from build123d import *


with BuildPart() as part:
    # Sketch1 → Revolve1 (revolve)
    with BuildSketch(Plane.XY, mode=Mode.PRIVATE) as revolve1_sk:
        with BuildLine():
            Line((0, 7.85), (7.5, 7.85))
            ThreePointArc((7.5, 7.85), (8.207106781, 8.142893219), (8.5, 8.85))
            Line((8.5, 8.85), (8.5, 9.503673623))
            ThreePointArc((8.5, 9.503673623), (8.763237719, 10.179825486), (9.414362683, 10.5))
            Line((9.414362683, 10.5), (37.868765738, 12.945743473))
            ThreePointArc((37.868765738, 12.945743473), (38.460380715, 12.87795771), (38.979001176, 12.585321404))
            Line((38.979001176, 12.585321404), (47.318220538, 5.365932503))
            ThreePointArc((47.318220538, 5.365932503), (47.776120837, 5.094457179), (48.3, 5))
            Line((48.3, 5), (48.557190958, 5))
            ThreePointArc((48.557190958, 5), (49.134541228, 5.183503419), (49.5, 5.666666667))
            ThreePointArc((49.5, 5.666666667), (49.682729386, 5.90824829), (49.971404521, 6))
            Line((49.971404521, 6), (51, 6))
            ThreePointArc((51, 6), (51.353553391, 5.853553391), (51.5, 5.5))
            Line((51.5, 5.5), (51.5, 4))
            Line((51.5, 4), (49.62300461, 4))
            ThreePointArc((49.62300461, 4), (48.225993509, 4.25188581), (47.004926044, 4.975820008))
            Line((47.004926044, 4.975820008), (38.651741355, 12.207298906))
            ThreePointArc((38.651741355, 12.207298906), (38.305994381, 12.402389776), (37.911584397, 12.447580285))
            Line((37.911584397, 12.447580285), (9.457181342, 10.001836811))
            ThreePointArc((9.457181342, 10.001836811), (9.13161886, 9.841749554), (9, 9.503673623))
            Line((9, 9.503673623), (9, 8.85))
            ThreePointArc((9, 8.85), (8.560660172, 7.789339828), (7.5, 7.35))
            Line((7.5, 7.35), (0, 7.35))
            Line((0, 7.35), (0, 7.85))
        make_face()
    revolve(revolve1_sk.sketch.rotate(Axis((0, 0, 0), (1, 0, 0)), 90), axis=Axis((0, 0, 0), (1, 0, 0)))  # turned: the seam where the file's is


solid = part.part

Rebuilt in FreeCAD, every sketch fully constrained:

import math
import FreeCAD as App
import Part
import Sketcher

doc = App.newDocument("Part")
body = doc.addObject("PartDesign::Body", "Body")

sketch1 = body.newObject("Sketcher::SketchObject", "Sketch")
sketch1.AttachmentSupport = (doc.getObject("XY_Plane"), [""])
sketch1.MapMode = "FlatFace"
sketch1.addGeometry(Part.LineSegment(App.Vector(7.5, 7.85, 0), App.Vector(0, 7.85, 0)), False)
sketch1.addGeometry(Part.LineSegment(App.Vector(0, 7.85, 0), App.Vector(0, 7.35, 0)), False)
sketch1.addGeometry(Part.LineSegment(App.Vector(0, 7.35, 0), App.Vector(7.5, 7.35, 0)), False)
sketch1.addGeometry(Part.ArcOfCircle(Part.Circle(App.Vector(7.5, 8.85, 0), App.Vector(0, 0, 1), 1.5), math.radians(-90), math.radians(0)), False)
sketch1.addGeometry(Part.LineSegment(App.Vector(9, 8.85, 0), App.Vector(9, 9.503674, 0)), False)
sketch1.addGeometry(Part.ArcOfCircle(Part.Circle(App.Vector(9.5, 9.503674, 0), App.Vector(0, 0, 1), 0.5), math.radians(94.912674), math.radians(180)), False)
sketch1.addGeometry(Part.LineSegment(App.Vector(9.457181, 10.001837, 0), App.Vector(37.911584, 12.44758, 0)), False)
sketch1.addGeometry(Part.ArcOfCircle(Part.Circle(App.Vector(37.997222, 11.451254, 0), App.Vector(0, 0, 1), 1), math.radians(49.116763), math.radians(94.912674)), False)
sketch1.addGeometry(Part.LineSegment(App.Vector(38.651741, 12.207299, 0), App.Vector(47.004926, 4.97582, 0)), False)
sketch1.addGeometry(Part.ArcOfCircle(Part.Circle(App.Vector(49.623005, 8, 0), App.Vector(0, 0, 1), 4), math.radians(-130.883237), math.radians(-90)), False)
sketch1.addGeometry(Part.LineSegment(App.Vector(49.623005, 4, 0), App.Vector(51.5, 4, 0)), False)
sketch1.addGeometry(Part.LineSegment(App.Vector(51.5, 4, 0), App.Vector(51.5, 5.5, 0)), False)
sketch1.addGeometry(Part.ArcOfCircle(Part.Circle(App.Vector(51, 5.5, 0), App.Vector(0, 0, 1), 0.5), math.radians(0), math.radians(90)), False)
sketch1.addGeometry(Part.LineSegment(App.Vector(51, 6, 0), App.Vector(49.971405, 6, 0)), False)
sketch1.addGeometry(Part.ArcOfCircle(Part.Circle(App.Vector(49.971405, 5.5, 0), App.Vector(0, 0, 1), 0.5), math.radians(90), math.radians(160.528779)), False)
sketch1.addGeometry(Part.ArcOfCircle(Part.Circle(App.Vector(48.557191, 6, 0), App.Vector(0, 0, 1), 1), math.radians(-90), math.radians(-19.471221)), False)
sketch1.addGeometry(Part.LineSegment(App.Vector(48.557191, 5, 0), App.Vector(48.3, 5, 0)), False)
sketch1.addGeometry(Part.ArcOfCircle(Part.Circle(App.Vector(48.3, 6.5, 0), App.Vector(0, 0, 1), 1.5), math.radians(-130.883237), math.radians(-90)), False)
sketch1.addGeometry(Part.LineSegment(App.Vector(47.318221, 5.365933, 0), App.Vector(38.979001, 12.585321, 0)), False)
sketch1.addGeometry(Part.ArcOfCircle(Part.Circle(App.Vector(37.997222, 11.451254, 0), App.Vector(0, 0, 1), 1.5), math.radians(49.116763), math.radians(94.912674)), False)
sketch1.addGeometry(Part.LineSegment(App.Vector(37.868766, 12.945743, 0), App.Vector(9.414363, 10.5, 0)), False)
sketch1.addGeometry(Part.ArcOfCircle(Part.Circle(App.Vector(9.5, 9.503674, 0), App.Vector(0, 0, 1), 1), math.radians(94.912674), math.radians(180)), False)
sketch1.addGeometry(Part.LineSegment(App.Vector(8.5, 9.503674, 0), App.Vector(8.5, 8.85, 0)), False)
sketch1.addGeometry(Part.ArcOfCircle(Part.Circle(App.Vector(7.5, 8.85, 0), App.Vector(0, 0, 1), 1), math.radians(-90), math.radians(0)), False)
sketch1.addConstraint(Sketcher.Constraint("Coincident", 0, 2, 1, 1))
sketch1.addConstraint(Sketcher.Constraint("Coincident", 1, 2, 2, 1))
sketch1.addConstraint(Sketcher.Constraint("Tangent", 2, 2, 3, 1))
sketch1.addConstraint(Sketcher.Constraint("Tangent", 3, 2, 4, 1))
sketch1.addConstraint(Sketcher.Constraint("Tangent", 4, 2, 5, 2))
sketch1.addConstraint(Sketcher.Constraint("Tangent", 5, 1, 6, 1))
sketch1.addConstraint(Sketcher.Constraint("Tangent", 6, 2, 7, 2))
sketch1.addConstraint(Sketcher.Constraint("Tangent", 7, 1, 8, 1))
sketch1.addConstraint(Sketcher.Constraint("Tangent", 8, 2, 9, 1))
sketch1.addConstraint(Sketcher.Constraint("Tangent", 9, 2, 10, 1))
sketch1.addConstraint(Sketcher.Constraint("Coincident", 10, 2, 11, 1))
sketch1.addConstraint(Sketcher.Constraint("Tangent", 11, 2, 12, 1))
sketch1.addConstraint(Sketcher.Constraint("Tangent", 12, 2, 13, 1))
sketch1.addConstraint(Sketcher.Constraint("Tangent", 13, 2, 14, 1))
sketch1.addConstraint(Sketcher.Constraint("Tangent", 14, 2, 15, 2))
sketch1.addConstraint(Sketcher.Constraint("Tangent", 15, 1, 16, 1))
sketch1.addConstraint(Sketcher.Constraint("Tangent", 16, 2, 17, 2))
sketch1.addConstraint(Sketcher.Constraint("Tangent", 17, 1, 18, 1))
sketch1.addConstraint(Sketcher.Constraint("Tangent", 18, 2, 19, 1))
sketch1.addConstraint(Sketcher.Constraint("Tangent", 19, 2, 20, 1))
sketch1.addConstraint(Sketcher.Constraint("Tangent", 20, 2, 21, 1))
sketch1.addConstraint(Sketcher.Constraint("Tangent", 21, 2, 22, 1))
sketch1.addConstraint(Sketcher.Constraint("Tangent", 22, 2, 23, 2))
sketch1.addConstraint(Sketcher.Constraint("Tangent", 23, 1, 0, 1))
sketch1.addConstraint(Sketcher.Constraint("Horizontal", 0))
sketch1.addConstraint(Sketcher.Constraint("Vertical", 1))
sketch1.addConstraint(Sketcher.Constraint("Horizontal", 2))
sketch1.addConstraint(Sketcher.Constraint("Vertical", 4))
sketch1.addConstraint(Sketcher.Constraint("Horizontal", 10))
sketch1.addConstraint(Sketcher.Constraint("Vertical", 11))
sketch1.addConstraint(Sketcher.Constraint("Horizontal", 13))
sketch1.addConstraint(Sketcher.Constraint("Horizontal", 16))
sketch1.addConstraint(Sketcher.Constraint("Vertical", 22))
sketch1.addConstraint(Sketcher.Constraint("Coincident", 19, 3, 7, 3))
sketch1.addConstraint(Sketcher.Constraint("Coincident", 21, 3, 5, 3))
sketch1.addConstraint(Sketcher.Constraint("Coincident", 23, 3, 3, 3))
sketch1.addConstraint(Sketcher.Constraint("Equal", 5, 12))
sketch1.addConstraint(Sketcher.Constraint("Equal", 12, 14))
sketch1.addConstraint(Sketcher.Constraint("Equal", 7, 15))
sketch1.addConstraint(Sketcher.Constraint("Equal", 3, 17))
sketch1.addConstraint(Sketcher.Constraint("Equal", 17, 19))
sketch1.addConstraint(Sketcher.Constraint("Equal", 15, 21))
sketch1.addConstraint(Sketcher.Constraint("Equal", 21, 23))
sketch1.addConstraint(Sketcher.Constraint("PointOnObject", 0, 2, -2))
sketch1.addConstraint(Sketcher.Constraint("Parallel", 8, 18))
sketch1.addConstraint(Sketcher.Constraint("Horizontal", 15, 3, 12, 2))
sketch1.addConstraint(Sketcher.Constraint("Radius", 7, 1.0))
sketch1.addConstraint(Sketcher.Constraint("Radius", 9, 4.0))
sketch1.addConstraint(Sketcher.Constraint("Radius", 3, 1.5))
sketch1.addConstraint(Sketcher.Constraint("DistanceX", 0, 2, 0, 1, 7.5))
sketch1.addConstraint(Sketcher.Constraint("DistanceY", 11, 1, 11, 2, 1.5))
sketch1.addConstraint(Sketcher.Constraint("DistanceY", -1, 1, 9, 3, 8.0))
sketch1.addConstraint(Sketcher.Constraint("DistanceX", -1, 1, 12, 3, 51.0))
sketch1.addConstraint(Sketcher.Constraint("DistanceX", -1, 1, 17, 3, 48.3))
sketch1.addConstraint(Sketcher.Constraint("DistanceX", -1, 1, 14, 2, 49.5))
sketch1.addConstraint(Sketcher.Constraint("DistanceY", -1, 1, 20, 2, 10.5))
sketch1.addConstraint(Sketcher.Constraint("DistanceY", -1, 1, 3, 3, 8.85))
sketch1.addConstraint(Sketcher.Constraint("DistanceX", -1, 1, 18, 2, 38.979001))
sketch1.addConstraint(Sketcher.Constraint("DistanceY", -1, 1, 7, 1, 12.207299))
revolution = body.newObject("PartDesign::Revolution", "Revolution")
revolution.Profile = sketch1
revolution.ReferenceAxis = (sketch1, ["H_Axis"])
revolution.Angle = 360

doc.recompute()
